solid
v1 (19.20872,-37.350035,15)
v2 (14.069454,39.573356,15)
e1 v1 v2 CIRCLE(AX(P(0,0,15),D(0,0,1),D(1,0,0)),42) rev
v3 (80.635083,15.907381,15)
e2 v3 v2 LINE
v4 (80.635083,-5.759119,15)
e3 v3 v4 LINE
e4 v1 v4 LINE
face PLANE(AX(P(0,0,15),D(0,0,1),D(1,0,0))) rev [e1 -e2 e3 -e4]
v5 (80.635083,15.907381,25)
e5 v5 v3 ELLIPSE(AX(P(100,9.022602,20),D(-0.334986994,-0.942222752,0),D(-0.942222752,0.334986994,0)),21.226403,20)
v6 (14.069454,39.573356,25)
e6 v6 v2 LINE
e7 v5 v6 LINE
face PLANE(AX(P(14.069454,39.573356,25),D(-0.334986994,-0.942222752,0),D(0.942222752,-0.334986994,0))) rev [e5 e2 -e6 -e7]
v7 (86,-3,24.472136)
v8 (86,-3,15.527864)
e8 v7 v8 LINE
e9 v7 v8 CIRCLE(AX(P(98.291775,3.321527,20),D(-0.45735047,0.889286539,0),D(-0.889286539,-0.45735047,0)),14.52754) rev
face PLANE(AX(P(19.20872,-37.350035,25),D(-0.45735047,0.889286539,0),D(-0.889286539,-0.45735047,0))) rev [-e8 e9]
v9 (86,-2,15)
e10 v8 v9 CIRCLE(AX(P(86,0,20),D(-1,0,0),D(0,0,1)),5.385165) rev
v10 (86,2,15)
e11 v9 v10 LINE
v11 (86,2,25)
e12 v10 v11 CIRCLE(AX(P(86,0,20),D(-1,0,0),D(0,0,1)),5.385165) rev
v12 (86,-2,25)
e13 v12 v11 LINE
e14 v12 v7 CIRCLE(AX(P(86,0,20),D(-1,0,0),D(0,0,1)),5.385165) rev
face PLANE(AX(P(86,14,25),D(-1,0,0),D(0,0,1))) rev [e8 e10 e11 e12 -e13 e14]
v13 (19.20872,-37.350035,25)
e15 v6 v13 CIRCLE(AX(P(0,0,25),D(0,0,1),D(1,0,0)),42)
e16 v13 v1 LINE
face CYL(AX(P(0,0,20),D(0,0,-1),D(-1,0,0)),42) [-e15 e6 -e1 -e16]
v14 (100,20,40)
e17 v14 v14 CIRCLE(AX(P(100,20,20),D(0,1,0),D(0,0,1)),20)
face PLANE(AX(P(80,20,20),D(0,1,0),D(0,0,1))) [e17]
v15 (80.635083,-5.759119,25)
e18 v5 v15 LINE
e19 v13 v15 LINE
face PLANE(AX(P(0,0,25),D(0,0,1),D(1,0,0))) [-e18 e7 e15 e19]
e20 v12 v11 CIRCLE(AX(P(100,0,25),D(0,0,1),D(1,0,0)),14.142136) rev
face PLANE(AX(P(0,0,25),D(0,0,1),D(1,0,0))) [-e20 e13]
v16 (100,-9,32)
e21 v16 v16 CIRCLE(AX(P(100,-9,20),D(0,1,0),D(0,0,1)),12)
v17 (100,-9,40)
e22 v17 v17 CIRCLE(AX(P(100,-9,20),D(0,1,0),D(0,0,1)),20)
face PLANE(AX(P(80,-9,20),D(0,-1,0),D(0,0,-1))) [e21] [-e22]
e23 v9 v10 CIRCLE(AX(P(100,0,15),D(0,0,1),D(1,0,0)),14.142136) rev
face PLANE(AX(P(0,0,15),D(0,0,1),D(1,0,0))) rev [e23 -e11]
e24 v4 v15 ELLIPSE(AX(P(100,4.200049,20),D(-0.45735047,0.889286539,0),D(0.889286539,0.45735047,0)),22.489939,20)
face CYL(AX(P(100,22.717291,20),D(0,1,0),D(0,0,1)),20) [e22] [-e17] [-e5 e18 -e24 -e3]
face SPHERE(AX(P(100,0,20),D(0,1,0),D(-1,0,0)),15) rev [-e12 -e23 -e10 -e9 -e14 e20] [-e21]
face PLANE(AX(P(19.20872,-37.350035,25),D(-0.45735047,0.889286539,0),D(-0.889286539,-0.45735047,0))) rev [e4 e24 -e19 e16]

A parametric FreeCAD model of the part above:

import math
import FreeCAD as App
import Part
import Sketcher
Q = App.Units.Quantity

doc = App.newDocument("Part")
body = doc.addObject("PartDesign::Body", "Body")

# Sketch on XY plane
sketch1 = body.newObject("Sketcher::SketchObject", "Sketch")
sketch1.AttachmentSupport = (doc.getObject("XY_Plane"), [""])
sketch1.MapMode = "FlatFace"
sketch1.addGeometry(Part.Circle(App.Vector(0, 0, 0), App.Vector(0, 0, 1), 42), False)
sketch1.addConstraint([
    Sketcher.Constraint("Coincident", 0, 3, -1, 1),
    Sketcher.Constraint("Diameter", 0, Q("84 mm")),
])
pad1 = body.newObject("PartDesign::Pad", "Pad")
pad1.Profile = sketch1
pad1.Length = 20
body2 = doc.addObject("PartDesign::Body", "Body001")

# Sketch on XY plane
sketch2 = body2.newObject("Sketcher::SketchObject", "Sketch001")
sketch2.AttachmentSupport = (doc.getObject("XY_Plane001"), [""])
sketch2.MapMode = "FlatFace"
sketch2.AttachmentOffset = App.Placement(App.Vector(0, 0, 20), App.Rotation())
sketch2.addGeometry([
    Part.LineSegment(App.Vector(100, 15, 0), App.Vector(100, 20, 0)),  # 0
    Part.LineSegment(App.Vector(100, 20, 0), App.Vector(80, 20, 0)),  # 1
    Part.LineSegment(App.Vector(80, 20, 0), App.Vector(80, -9, 0)),  # 2
    Part.LineSegment(App.Vector(80, -9, 0), App.Vector(88, -9, 0)),  # 3
    Part.ArcOfCircle(Part.Circle(App.Vector(100, 0, 0), App.Vector(0, 0, 1), 15), math.radians(90), math.radians(217)),  # 4
], False)
sketch2.addGeometry(Part.LineSegment(App.Vector(100, 20, 0), App.Vector(100, -9, 0)), True)  # axis
sketch2.addConstraint([
    Sketcher.Constraint("Coincident", 0, 2, 1, 1),
    Sketcher.Constraint("Coincident", 1, 2, 2, 1),
    Sketcher.Constraint("Coincident", 2, 2, 3, 1),
    Sketcher.Constraint("Coincident", 3, 2, 4, 2),
    Sketcher.Constraint("Coincident", 4, 1, 0, 1),
    Sketcher.Constraint("Vertical", 0),
    Sketcher.Constraint("Horizontal", 1),
    Sketcher.Constraint("Vertical", 2),
    Sketcher.Constraint("Horizontal", 3),
    Sketcher.Constraint("Vertical", 5),
    Sketcher.Constraint("Coincident", 5, 1, 0, 2),
    Sketcher.Constraint("PointOnObject", 4, 3, -1),
    Sketcher.Constraint("Horizontal", 3, 2, 5, 2),
    Sketcher.Constraint("Vertical", 4, 3, 0, 2),
    Sketcher.Constraint("Radius", 4, Q("15 mm")),
    Sketcher.Constraint("DistanceX", 1, 2, 1, 1, Q("20 mm")),
    Sketcher.Constraint("DistanceX", 3, 1, 3, 2, Q("8 mm")),
    Sketcher.Constraint("DistanceY", 0, 1, 0, 2, Q("5 mm")),
    Sketcher.Constraint("DistanceX", -1, 1, 4, 3, Q("100 mm")),
])
revolution = body2.newObject("PartDesign::Revolution", "Revolution")
revolution.Profile = sketch2
revolution.ReferenceAxis = (sketch2, ["Axis0"])
revolution.Angle = 360
body.AllowCompound = True
doc.recompute()

boolean = body.newObject("PartDesign::Boolean", "Boolean")
boolean.Type = "Fuse"
boolean.addObjects([body2])

# Sketch on XY plane
sketch3 = body.newObject("Sketcher::SketchObject", "Sketch002")
sketch3.AttachmentSupport = (doc.getObject("XY_Plane"), [""])
sketch3.MapMode = "FlatFace"
sketch3.AttachmentOffset = App.Placement(App.Vector(0, 0, 20), App.Rotation())
sketch3.addGeometry([
    Part.LineSegment(App.Vector(86, 14, 0), App.Vector(14, 40, 0)),
    Part.ArcOfCircle(Part.Circle(App.Vector(0, 0, 0), App.Vector(0, 0, 1), 42), math.radians(70), math.radians(297)),
    Part.LineSegment(App.Vector(19, -37, 0), App.Vector(86, -3, 0)),
    Part.LineSegment(App.Vector(86, -3, 0), App.Vector(86, 14, 0)),
], False)
sketch3.addConstraint([
    Sketcher.Constraint("Tangent", 0, 2, 1, 1),
    Sketcher.Constraint("Tangent", 1, 2, 2, 1),
    Sketcher.Constraint("Coincident", 2, 2, 3, 1),
    Sketcher.Constraint("Coincident", 3, 2, 0, 1),
    Sketcher.Constraint("Vertical", 3),
    Sketcher.Constraint("Coincident", 1, 3, -1, 1),
    Sketcher.Constraint("Radius", 1, Q("42 mm")),
    Sketcher.Constraint("DistanceY", 3, 1, 3, 2, Q("17 mm")),
    Sketcher.Constraint("DistanceX", -1, 1, 2, 2, Q("86 mm")),
    Sketcher.Constraint("DistanceY", 2, 2, -1, 1, Q("3 mm")),
])
pad2 = body.newObject("PartDesign::Pad", "Pad001")
pad2.Profile = sketch3
pad2.Length = 10
pad2.Midplane = True

# Sketch on XY plane
sketch4 = body.newObject("Sketcher::SketchObject", "Sketch003")
sketch4.AttachmentSupport = (doc.getObject("XY_Plane"), [""])
sketch4.MapMode = "FlatFace"
sketch4.addGeometry(Part.Circle(App.Vector(0, 0, 0), App.Vector(0, 0, 1), 42), False)
sketch4.addConstraint([
    Sketcher.Constraint("Coincident", 0, 3, -1, 1),
    Sketcher.Constraint("Diameter", 0, Q("84 mm")),
])
pocket1 = body.newObject("PartDesign::Pocket", "Pocket")
pocket1.Profile = sketch4
pocket1.Length = 15
pocket1.Reversed = True

doc.recompute()
